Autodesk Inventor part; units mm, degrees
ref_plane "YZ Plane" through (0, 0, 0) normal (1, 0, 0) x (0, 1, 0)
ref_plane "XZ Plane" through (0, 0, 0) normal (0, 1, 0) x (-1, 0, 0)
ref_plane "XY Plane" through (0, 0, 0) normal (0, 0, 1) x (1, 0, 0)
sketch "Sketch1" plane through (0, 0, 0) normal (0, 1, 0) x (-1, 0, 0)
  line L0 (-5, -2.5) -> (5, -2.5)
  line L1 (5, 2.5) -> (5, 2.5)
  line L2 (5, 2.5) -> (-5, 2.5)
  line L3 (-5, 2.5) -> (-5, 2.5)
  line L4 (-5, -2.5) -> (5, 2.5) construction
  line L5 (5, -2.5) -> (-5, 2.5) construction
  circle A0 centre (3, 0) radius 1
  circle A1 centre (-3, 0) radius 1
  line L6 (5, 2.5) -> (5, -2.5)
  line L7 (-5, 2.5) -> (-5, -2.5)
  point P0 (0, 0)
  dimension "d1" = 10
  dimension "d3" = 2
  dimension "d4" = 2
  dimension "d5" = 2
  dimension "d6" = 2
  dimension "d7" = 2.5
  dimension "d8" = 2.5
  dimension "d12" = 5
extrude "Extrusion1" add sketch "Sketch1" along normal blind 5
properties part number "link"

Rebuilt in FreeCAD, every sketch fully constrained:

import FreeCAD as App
import Part
import Sketcher

V = App.Vector
Q = App.Units.Quantity

doc = App.newDocument("Part")
body = doc.addObject("PartDesign::Body", "Body")

# Sketch on XZ plane
sketch1 = body.newObject("Sketcher::SketchObject", "Sketch")
sketch1.AttachmentSupport = (doc.getObject("XZ_Plane"), [""])
sketch1.MapMode = "FlatFace"
sketch1.addGeometry([
    Part.LineSegment(V(5, 2.5, 0), V(5, -2.5, 0)),  # 0
    Part.LineSegment(V(5, -2.5, 0), V(-5, -2.5, 0)),  # 1
    Part.LineSegment(V(-5, -2.5, 0), V(-5, 2.5, 0)),  # 2
    Part.LineSegment(V(-5, 2.5, 0), V(5, 2.5, 0)),  # 3
    Part.Circle(V(3, 0, 0), V(0, 0, 1), 1),  # 4
    Part.Circle(V(-3, 0, 0), V(0, 0, 1), 1),  # 5
], False)
sketch1.addConstraint([
    Sketcher.Constraint("Coincident", 0, 2, 1, 1),
    Sketcher.Constraint("Coincident", 1, 2, 2, 1),
    Sketcher.Constraint("Coincident", 2, 2, 3, 1),
    Sketcher.Constraint("Coincident", 3, 2, 0, 1),
    Sketcher.Constraint("Vertical", 0),
    Sketcher.Constraint("Horizontal", 1),
    Sketcher.Constraint("Vertical", 2),
    Sketcher.Constraint("Horizontal", 3),
    Sketcher.Constraint("Equal", 4, 5),
    Sketcher.Constraint("Symmetric", 4, 3, 5, 3, -1, 1),
    Sketcher.Constraint("Symmetric", 0, 2, 2, 2, -1, 1),
    Sketcher.Constraint("PointOnObject", 4, 3, -1),
    Sketcher.Constraint("Diameter", 4, Q("2 mm")),
    Sketcher.Constraint("DistanceX", 1, 2, 1, 1, Q("10 mm")),
    Sketcher.Constraint("DistanceY", 0, 2, 0, 1, Q("5 mm")),
    Sketcher.Constraint("DistanceX", 4, 3, 0, 2, Q("2 mm")),
])
pad1 = body.newObject("PartDesign::Pad", "Pad")
pad1.Profile = sketch1
pad1.Length = 5
pad1.Reversed = True

doc.recompute()
